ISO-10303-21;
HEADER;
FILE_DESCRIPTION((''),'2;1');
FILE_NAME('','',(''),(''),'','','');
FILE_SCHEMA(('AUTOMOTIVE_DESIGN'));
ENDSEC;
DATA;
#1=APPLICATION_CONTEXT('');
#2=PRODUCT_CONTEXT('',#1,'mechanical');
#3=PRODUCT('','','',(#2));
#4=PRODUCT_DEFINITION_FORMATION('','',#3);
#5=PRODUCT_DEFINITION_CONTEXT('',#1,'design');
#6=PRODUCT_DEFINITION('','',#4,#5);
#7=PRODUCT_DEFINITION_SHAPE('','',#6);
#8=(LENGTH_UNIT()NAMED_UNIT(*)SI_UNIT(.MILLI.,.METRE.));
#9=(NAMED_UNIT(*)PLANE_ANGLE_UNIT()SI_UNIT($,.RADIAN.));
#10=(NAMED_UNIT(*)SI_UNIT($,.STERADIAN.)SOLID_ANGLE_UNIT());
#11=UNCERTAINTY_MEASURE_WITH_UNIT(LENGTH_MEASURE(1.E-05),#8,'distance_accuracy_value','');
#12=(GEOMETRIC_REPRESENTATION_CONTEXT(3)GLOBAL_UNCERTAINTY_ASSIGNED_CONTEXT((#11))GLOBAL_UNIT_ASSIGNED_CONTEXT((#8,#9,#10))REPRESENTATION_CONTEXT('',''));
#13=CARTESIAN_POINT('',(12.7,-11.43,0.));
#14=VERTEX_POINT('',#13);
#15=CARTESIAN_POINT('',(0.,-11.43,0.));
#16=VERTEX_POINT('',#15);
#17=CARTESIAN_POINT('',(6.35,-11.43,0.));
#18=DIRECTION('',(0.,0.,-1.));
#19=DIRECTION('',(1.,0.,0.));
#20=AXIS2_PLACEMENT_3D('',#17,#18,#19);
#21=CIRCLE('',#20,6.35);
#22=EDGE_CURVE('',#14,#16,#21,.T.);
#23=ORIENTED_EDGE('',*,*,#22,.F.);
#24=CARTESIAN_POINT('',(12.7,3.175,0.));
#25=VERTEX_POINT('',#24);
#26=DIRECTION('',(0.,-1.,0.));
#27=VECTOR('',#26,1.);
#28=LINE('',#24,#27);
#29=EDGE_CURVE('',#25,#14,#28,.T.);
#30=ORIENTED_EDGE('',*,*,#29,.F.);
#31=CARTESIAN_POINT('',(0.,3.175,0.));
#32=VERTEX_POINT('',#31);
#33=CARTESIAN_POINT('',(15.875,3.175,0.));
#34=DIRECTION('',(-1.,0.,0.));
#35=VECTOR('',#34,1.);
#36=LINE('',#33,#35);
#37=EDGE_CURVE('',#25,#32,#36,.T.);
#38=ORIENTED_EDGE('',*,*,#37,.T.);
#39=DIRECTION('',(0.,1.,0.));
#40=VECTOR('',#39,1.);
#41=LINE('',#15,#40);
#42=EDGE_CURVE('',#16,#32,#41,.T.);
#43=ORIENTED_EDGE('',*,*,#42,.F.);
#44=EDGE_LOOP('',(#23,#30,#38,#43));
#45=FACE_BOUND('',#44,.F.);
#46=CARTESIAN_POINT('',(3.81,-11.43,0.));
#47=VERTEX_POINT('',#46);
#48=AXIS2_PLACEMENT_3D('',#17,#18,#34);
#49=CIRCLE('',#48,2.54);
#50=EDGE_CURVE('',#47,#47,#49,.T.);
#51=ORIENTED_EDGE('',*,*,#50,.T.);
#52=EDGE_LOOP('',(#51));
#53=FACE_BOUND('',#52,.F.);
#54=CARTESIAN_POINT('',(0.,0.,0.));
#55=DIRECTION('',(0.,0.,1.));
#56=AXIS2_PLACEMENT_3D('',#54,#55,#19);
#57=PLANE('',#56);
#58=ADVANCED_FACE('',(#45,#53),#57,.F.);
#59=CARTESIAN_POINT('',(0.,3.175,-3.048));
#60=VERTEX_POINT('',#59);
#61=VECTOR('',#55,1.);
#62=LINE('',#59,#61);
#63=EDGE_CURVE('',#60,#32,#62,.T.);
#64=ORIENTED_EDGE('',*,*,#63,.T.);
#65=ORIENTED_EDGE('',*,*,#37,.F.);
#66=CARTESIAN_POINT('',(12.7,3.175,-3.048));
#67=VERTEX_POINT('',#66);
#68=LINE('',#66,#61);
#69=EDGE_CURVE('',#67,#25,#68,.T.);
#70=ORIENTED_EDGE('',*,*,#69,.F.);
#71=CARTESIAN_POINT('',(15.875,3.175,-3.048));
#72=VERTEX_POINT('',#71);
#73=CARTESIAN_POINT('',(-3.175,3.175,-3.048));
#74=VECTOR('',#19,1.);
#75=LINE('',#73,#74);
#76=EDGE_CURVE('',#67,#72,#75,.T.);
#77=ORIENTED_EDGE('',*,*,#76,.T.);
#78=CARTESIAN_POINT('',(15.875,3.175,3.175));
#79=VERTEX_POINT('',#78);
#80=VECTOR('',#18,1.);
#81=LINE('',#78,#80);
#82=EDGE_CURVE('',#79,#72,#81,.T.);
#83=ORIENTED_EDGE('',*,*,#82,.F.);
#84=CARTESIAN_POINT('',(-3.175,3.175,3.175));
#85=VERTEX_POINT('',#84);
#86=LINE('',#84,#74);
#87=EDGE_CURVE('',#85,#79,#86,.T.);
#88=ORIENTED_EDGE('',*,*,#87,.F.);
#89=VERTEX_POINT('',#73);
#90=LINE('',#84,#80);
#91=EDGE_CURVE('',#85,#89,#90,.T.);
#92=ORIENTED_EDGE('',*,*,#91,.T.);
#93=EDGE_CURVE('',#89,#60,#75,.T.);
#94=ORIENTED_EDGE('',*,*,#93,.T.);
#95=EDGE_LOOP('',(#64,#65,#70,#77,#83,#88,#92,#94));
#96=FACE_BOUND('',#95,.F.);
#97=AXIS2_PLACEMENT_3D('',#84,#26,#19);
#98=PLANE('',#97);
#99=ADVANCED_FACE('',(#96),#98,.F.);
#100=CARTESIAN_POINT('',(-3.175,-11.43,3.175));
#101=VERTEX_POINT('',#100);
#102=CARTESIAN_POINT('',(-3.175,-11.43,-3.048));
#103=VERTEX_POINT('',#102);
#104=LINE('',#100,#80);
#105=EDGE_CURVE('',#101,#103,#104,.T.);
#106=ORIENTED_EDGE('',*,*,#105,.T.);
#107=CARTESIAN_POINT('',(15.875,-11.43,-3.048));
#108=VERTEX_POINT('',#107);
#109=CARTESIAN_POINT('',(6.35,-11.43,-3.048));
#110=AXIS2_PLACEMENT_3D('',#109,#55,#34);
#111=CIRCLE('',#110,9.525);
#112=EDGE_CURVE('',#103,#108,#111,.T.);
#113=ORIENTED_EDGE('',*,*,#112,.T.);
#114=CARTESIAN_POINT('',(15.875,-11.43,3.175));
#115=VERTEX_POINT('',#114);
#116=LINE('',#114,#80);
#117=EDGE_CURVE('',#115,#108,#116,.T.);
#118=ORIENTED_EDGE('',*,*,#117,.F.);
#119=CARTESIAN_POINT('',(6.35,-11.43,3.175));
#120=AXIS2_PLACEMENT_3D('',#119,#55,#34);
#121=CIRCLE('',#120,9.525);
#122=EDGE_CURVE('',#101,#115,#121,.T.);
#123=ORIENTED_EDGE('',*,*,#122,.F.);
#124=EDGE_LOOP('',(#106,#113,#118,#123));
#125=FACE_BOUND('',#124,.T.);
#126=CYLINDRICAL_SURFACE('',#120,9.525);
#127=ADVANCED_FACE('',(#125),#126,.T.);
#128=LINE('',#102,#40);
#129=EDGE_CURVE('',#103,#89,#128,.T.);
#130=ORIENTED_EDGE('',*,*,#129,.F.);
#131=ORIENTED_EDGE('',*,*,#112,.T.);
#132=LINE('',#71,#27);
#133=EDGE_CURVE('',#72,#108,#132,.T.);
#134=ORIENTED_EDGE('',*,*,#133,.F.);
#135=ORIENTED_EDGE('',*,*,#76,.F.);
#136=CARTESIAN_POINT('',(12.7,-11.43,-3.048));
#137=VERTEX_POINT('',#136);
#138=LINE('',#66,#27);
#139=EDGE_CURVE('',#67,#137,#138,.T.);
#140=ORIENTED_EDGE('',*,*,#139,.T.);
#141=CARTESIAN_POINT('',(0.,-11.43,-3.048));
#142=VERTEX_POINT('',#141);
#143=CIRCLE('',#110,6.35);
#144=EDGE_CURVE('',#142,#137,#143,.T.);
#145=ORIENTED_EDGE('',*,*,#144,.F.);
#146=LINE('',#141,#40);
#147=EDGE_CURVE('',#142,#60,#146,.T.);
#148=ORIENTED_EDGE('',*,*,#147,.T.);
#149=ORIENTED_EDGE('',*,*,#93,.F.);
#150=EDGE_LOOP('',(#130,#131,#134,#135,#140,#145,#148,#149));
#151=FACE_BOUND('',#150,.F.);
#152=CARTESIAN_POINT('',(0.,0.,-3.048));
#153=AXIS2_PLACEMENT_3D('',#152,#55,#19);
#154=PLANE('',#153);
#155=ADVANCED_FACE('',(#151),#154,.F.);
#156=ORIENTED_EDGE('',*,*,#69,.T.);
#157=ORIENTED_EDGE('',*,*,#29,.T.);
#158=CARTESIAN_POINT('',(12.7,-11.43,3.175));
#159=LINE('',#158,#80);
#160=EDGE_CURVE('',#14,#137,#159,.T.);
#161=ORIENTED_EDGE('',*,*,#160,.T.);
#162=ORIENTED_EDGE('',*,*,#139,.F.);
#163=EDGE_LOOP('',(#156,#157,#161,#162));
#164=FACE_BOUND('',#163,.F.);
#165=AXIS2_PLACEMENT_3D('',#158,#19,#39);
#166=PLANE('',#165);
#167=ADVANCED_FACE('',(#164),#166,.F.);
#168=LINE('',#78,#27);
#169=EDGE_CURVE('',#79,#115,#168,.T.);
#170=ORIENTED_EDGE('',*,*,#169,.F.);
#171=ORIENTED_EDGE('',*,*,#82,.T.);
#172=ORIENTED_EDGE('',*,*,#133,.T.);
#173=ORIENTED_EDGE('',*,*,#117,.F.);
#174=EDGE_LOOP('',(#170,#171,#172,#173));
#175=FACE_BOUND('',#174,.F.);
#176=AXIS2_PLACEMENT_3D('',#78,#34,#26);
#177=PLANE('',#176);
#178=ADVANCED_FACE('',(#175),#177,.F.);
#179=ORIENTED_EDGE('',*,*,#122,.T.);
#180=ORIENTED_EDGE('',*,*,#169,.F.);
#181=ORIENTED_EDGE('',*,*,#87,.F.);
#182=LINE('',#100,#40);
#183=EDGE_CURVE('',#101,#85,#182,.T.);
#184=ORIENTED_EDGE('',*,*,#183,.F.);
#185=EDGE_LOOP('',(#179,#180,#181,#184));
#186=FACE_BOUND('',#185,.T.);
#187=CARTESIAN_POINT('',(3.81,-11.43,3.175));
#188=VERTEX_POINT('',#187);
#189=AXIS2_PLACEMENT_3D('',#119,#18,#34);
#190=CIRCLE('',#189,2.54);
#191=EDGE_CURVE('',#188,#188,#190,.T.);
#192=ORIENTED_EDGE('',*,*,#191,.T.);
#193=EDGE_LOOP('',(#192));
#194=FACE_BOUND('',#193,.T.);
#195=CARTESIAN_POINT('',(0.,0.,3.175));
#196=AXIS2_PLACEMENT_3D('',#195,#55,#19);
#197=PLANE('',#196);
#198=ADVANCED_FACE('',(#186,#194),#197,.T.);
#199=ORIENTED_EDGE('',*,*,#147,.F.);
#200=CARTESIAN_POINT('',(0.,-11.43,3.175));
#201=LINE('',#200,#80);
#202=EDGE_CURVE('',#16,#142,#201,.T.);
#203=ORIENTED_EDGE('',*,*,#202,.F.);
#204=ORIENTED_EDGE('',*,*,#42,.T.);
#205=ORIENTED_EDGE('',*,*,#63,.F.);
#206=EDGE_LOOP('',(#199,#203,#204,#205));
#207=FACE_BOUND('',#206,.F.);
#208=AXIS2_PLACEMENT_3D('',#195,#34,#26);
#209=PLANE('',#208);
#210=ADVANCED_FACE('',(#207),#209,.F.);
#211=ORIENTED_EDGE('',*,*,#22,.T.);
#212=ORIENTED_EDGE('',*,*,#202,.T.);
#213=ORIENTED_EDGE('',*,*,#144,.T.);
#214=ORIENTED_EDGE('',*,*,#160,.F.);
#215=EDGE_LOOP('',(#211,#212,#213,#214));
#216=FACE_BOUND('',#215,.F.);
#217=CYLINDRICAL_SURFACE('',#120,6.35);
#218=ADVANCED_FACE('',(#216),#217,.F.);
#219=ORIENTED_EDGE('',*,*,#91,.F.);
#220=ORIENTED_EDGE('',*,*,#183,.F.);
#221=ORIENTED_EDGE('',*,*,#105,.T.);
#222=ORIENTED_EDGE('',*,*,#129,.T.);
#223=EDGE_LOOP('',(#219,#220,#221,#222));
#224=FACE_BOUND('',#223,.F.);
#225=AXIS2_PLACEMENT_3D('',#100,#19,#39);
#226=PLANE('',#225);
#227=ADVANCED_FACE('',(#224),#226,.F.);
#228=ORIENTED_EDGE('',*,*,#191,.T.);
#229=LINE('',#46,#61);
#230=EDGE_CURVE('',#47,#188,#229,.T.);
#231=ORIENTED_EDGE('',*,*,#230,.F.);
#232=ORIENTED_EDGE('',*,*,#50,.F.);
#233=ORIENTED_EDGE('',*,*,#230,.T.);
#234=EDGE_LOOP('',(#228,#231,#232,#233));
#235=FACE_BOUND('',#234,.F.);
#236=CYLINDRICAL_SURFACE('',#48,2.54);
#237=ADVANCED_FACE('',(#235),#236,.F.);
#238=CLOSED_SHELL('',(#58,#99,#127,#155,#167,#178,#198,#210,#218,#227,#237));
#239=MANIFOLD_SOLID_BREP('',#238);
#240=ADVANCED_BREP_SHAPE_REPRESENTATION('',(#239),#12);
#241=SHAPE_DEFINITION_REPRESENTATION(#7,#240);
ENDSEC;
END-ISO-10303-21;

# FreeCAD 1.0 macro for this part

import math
import FreeCAD as App
import Part
import Sketcher

V = App.Vector
Q = App.Units.Quantity


def add_polygon(sketch, points):
    """Adds a closed chain of lines whose ends are joined by coincident constraints."""
    first, n = sketch.GeometryCount, len(points)
    for a, b in zip(points, points[1:] + points[:1]):
        sketch.addGeometry(Part.LineSegment(App.Vector(*a, 0), App.Vector(*b, 0)), False)
    for i in range(n):
        sketch.addConstraint(Sketcher.Constraint("Coincident", first + i, 2, first + (i + 1) % n, 1))

doc = App.newDocument("Part")
body = doc.addObject("PartDesign::Body", "Body")

sketch1 = body.newObject("Sketcher::SketchObject", "Sketch")
sketch1.AttachmentSupport = (doc.getObject("XY_Plane"), [""])
sketch1.MapMode = "FlatFace"
sketch1.addGeometry([
    Part.LineSegment(V(13, 0, 0), V(0, 0, 0)),
    Part.LineSegment(V(0, 0, 0), V(0, -11, 0)),
    Part.ArcOfCircle(Part.Circle(V(6, -11, 0), V(0, 0, 1), 6), math.radians(180), math.radians(360)),
    Part.LineSegment(V(13, -11, 0), V(13, 0, 0)),
], False)
sketch1.addConstraint([
    Sketcher.Constraint("Coincident", 0, 2, 1, 1),
    Sketcher.Constraint("Tangent", 1, 2, 2, 1),
    Sketcher.Constraint("Tangent", 2, 2, 3, 1),
    Sketcher.Constraint("Coincident", 3, 2, 0, 1),
    Sketcher.Constraint("Horizontal", 0),
    Sketcher.Constraint("Vertical", 1),
    Sketcher.Constraint("Vertical", 3),
    Sketcher.Constraint("Coincident", 0, 2, -1, 1),
    Sketcher.Constraint("Radius", 2, Q("0.25 in")),
    Sketcher.Constraint("DistanceY", 1, 2, 1, 1, Q("0.45 in")),
])
pad1 = body.newObject("PartDesign::Pad", "Pad")
pad1.Profile = sketch1
pad1.Length = Q("0.125 in")

sketch2 = body.newObject("Sketcher::SketchObject", "Sketch001")
sketch2.AttachmentSupport = (doc.getObject("XY_Plane"), [""])
sketch2.MapMode = "FlatFace"
sketch2.AttachmentOffset = App.Placement(V(0, 0, 0.125 * 25.4), App.Rotation())
sketch2.addGeometry([
    Part.LineSegment(V(16, 3, 0), V(-3, 3, 0)),
    Part.LineSegment(V(-3, 3, 0), V(-3, -11, 0)),
    Part.ArcOfCircle(Part.Circle(V(6, -11, 0), V(0, 0, 1), 10), math.radians(180), math.radians(360)),
    Part.LineSegment(V(16, -11, 0), V(16, 3, 0)),
    Part.LineSegment(V(0, 0, 0), V(13, 0, 0)),
    Part.LineSegment(V(13, 0, 0), V(13, -11, 0)),
    Part.ArcOfCircle(Part.Circle(V(6, -11, 0), V(0, 0, 1), 6), math.radians(180), math.radians(360)),
    Part.LineSegment(V(0, -11, 0), V(0, 0, 0)),
], False)
sketch2.addConstraint([
    Sketcher.Constraint("Coincident", 0, 2, 1, 1),
    Sketcher.Constraint("Tangent", 1, 2, 2, 1),
    Sketcher.Constraint("Tangent", 2, 2, 3, 1),
    Sketcher.Constraint("Coincident", 3, 2, 0, 1),
    Sketcher.Constraint("Coincident", 4, 2, 5, 1),
    Sketcher.Constraint("Tangent", 5, 2, 6, 2),
    Sketcher.Constraint("Tangent", 6, 1, 7, 1),
    Sketcher.Constraint("Coincident", 7, 2, 4, 1),
    Sketcher.Constraint("Horizontal", 0),
    Sketcher.Constraint("Vertical", 1),
    Sketcher.Constraint("Vertical", 3),
    Sketcher.Constraint("Horizontal", 4),
    Sketcher.Constraint("Vertical", 5),
    Sketcher.Constraint("Vertical", 7),
    Sketcher.Constraint("Coincident", 7, 2, -1, 1),
    Sketcher.Constraint("Coincident", 6, 3, 2, 3),
    Sketcher.Constraint("Radius", 6, Q("0.25 in")),
    Sketcher.Constraint("DistanceX", 0, 2, -1, 1, Q("0.125 in")),
    Sketcher.Constraint("DistanceY", -1, 1, 0, 2, Q("0.125 in")),
    Sketcher.Constraint("DistanceY", 5, 2, 5, 1, Q("0.45 in")),
])
pad2 = body.newObject("PartDesign::Pad", "Pad001")
pad2.Profile = sketch2
pad2.Length = Q("0.245 in")
pad2.Reversed = True

sketch3 = body.newObject("Sketcher::SketchObject", "Sketch002")
sketch3.AttachmentSupport = (doc.getObject("XY_Plane"), [""])
sketch3.MapMode = "FlatFace"
sketch3.AttachmentOffset = App.Placement(V(0, 0, -0.12 * 25.4), App.Rotation())
add_polygon(sketch3, [(0, 3.2), (12.7, 3.2), (12.7, 0), (0, 0)])
sketch3.addConstraint([
    Sketcher.Constraint("Horizontal", 0),
    Sketcher.Constraint("Vertical", 1),
    Sketcher.Constraint("Horizontal", 2),
    Sketcher.Constraint("Vertical", 3),
    Sketcher.Constraint("Coincident", 2, 2, -1, 1),
    Sketcher.Constraint("DistanceX", 0, 1, 0, 2, Q("0.5 in")),
    Sketcher.Constraint("DistanceY", 1, 2, 1, 1, Q("0.125 in")),
])
pocket1 = body.newObject("PartDesign::Pocket", "Pocket")
pocket1.Profile = sketch3
pocket1.Length = Q("0.12 in")
pocket1.Reversed = True

sketch4 = body.newObject("Sketcher::SketchObject", "Sketch003")
sketch4.AttachmentSupport = (doc.getObject("XY_Plane"), [""])
sketch4.MapMode = "FlatFace"
sketch4.addGeometry(Part.Circle(V(6.3, -11.4, 0), V(0, 0, 1), 2.5), False)
sketch4.addConstraint([
    Sketcher.Constraint("Diameter", 0, Q("0.2 in")),
    Sketcher.Constraint("DistanceX", -1, 1, 0, 3, Q("0.25 in")),
    Sketcher.Constraint("DistanceY", 0, 3, -1, 1, Q("0.45 in")),
])
pocket2 = body.newObject("PartDesign::Pocket", "Pocket001")
pocket2.Profile = sketch4
pocket2.Length = Q("1 in")
pocket2.Reversed = True

doc.recompute()
